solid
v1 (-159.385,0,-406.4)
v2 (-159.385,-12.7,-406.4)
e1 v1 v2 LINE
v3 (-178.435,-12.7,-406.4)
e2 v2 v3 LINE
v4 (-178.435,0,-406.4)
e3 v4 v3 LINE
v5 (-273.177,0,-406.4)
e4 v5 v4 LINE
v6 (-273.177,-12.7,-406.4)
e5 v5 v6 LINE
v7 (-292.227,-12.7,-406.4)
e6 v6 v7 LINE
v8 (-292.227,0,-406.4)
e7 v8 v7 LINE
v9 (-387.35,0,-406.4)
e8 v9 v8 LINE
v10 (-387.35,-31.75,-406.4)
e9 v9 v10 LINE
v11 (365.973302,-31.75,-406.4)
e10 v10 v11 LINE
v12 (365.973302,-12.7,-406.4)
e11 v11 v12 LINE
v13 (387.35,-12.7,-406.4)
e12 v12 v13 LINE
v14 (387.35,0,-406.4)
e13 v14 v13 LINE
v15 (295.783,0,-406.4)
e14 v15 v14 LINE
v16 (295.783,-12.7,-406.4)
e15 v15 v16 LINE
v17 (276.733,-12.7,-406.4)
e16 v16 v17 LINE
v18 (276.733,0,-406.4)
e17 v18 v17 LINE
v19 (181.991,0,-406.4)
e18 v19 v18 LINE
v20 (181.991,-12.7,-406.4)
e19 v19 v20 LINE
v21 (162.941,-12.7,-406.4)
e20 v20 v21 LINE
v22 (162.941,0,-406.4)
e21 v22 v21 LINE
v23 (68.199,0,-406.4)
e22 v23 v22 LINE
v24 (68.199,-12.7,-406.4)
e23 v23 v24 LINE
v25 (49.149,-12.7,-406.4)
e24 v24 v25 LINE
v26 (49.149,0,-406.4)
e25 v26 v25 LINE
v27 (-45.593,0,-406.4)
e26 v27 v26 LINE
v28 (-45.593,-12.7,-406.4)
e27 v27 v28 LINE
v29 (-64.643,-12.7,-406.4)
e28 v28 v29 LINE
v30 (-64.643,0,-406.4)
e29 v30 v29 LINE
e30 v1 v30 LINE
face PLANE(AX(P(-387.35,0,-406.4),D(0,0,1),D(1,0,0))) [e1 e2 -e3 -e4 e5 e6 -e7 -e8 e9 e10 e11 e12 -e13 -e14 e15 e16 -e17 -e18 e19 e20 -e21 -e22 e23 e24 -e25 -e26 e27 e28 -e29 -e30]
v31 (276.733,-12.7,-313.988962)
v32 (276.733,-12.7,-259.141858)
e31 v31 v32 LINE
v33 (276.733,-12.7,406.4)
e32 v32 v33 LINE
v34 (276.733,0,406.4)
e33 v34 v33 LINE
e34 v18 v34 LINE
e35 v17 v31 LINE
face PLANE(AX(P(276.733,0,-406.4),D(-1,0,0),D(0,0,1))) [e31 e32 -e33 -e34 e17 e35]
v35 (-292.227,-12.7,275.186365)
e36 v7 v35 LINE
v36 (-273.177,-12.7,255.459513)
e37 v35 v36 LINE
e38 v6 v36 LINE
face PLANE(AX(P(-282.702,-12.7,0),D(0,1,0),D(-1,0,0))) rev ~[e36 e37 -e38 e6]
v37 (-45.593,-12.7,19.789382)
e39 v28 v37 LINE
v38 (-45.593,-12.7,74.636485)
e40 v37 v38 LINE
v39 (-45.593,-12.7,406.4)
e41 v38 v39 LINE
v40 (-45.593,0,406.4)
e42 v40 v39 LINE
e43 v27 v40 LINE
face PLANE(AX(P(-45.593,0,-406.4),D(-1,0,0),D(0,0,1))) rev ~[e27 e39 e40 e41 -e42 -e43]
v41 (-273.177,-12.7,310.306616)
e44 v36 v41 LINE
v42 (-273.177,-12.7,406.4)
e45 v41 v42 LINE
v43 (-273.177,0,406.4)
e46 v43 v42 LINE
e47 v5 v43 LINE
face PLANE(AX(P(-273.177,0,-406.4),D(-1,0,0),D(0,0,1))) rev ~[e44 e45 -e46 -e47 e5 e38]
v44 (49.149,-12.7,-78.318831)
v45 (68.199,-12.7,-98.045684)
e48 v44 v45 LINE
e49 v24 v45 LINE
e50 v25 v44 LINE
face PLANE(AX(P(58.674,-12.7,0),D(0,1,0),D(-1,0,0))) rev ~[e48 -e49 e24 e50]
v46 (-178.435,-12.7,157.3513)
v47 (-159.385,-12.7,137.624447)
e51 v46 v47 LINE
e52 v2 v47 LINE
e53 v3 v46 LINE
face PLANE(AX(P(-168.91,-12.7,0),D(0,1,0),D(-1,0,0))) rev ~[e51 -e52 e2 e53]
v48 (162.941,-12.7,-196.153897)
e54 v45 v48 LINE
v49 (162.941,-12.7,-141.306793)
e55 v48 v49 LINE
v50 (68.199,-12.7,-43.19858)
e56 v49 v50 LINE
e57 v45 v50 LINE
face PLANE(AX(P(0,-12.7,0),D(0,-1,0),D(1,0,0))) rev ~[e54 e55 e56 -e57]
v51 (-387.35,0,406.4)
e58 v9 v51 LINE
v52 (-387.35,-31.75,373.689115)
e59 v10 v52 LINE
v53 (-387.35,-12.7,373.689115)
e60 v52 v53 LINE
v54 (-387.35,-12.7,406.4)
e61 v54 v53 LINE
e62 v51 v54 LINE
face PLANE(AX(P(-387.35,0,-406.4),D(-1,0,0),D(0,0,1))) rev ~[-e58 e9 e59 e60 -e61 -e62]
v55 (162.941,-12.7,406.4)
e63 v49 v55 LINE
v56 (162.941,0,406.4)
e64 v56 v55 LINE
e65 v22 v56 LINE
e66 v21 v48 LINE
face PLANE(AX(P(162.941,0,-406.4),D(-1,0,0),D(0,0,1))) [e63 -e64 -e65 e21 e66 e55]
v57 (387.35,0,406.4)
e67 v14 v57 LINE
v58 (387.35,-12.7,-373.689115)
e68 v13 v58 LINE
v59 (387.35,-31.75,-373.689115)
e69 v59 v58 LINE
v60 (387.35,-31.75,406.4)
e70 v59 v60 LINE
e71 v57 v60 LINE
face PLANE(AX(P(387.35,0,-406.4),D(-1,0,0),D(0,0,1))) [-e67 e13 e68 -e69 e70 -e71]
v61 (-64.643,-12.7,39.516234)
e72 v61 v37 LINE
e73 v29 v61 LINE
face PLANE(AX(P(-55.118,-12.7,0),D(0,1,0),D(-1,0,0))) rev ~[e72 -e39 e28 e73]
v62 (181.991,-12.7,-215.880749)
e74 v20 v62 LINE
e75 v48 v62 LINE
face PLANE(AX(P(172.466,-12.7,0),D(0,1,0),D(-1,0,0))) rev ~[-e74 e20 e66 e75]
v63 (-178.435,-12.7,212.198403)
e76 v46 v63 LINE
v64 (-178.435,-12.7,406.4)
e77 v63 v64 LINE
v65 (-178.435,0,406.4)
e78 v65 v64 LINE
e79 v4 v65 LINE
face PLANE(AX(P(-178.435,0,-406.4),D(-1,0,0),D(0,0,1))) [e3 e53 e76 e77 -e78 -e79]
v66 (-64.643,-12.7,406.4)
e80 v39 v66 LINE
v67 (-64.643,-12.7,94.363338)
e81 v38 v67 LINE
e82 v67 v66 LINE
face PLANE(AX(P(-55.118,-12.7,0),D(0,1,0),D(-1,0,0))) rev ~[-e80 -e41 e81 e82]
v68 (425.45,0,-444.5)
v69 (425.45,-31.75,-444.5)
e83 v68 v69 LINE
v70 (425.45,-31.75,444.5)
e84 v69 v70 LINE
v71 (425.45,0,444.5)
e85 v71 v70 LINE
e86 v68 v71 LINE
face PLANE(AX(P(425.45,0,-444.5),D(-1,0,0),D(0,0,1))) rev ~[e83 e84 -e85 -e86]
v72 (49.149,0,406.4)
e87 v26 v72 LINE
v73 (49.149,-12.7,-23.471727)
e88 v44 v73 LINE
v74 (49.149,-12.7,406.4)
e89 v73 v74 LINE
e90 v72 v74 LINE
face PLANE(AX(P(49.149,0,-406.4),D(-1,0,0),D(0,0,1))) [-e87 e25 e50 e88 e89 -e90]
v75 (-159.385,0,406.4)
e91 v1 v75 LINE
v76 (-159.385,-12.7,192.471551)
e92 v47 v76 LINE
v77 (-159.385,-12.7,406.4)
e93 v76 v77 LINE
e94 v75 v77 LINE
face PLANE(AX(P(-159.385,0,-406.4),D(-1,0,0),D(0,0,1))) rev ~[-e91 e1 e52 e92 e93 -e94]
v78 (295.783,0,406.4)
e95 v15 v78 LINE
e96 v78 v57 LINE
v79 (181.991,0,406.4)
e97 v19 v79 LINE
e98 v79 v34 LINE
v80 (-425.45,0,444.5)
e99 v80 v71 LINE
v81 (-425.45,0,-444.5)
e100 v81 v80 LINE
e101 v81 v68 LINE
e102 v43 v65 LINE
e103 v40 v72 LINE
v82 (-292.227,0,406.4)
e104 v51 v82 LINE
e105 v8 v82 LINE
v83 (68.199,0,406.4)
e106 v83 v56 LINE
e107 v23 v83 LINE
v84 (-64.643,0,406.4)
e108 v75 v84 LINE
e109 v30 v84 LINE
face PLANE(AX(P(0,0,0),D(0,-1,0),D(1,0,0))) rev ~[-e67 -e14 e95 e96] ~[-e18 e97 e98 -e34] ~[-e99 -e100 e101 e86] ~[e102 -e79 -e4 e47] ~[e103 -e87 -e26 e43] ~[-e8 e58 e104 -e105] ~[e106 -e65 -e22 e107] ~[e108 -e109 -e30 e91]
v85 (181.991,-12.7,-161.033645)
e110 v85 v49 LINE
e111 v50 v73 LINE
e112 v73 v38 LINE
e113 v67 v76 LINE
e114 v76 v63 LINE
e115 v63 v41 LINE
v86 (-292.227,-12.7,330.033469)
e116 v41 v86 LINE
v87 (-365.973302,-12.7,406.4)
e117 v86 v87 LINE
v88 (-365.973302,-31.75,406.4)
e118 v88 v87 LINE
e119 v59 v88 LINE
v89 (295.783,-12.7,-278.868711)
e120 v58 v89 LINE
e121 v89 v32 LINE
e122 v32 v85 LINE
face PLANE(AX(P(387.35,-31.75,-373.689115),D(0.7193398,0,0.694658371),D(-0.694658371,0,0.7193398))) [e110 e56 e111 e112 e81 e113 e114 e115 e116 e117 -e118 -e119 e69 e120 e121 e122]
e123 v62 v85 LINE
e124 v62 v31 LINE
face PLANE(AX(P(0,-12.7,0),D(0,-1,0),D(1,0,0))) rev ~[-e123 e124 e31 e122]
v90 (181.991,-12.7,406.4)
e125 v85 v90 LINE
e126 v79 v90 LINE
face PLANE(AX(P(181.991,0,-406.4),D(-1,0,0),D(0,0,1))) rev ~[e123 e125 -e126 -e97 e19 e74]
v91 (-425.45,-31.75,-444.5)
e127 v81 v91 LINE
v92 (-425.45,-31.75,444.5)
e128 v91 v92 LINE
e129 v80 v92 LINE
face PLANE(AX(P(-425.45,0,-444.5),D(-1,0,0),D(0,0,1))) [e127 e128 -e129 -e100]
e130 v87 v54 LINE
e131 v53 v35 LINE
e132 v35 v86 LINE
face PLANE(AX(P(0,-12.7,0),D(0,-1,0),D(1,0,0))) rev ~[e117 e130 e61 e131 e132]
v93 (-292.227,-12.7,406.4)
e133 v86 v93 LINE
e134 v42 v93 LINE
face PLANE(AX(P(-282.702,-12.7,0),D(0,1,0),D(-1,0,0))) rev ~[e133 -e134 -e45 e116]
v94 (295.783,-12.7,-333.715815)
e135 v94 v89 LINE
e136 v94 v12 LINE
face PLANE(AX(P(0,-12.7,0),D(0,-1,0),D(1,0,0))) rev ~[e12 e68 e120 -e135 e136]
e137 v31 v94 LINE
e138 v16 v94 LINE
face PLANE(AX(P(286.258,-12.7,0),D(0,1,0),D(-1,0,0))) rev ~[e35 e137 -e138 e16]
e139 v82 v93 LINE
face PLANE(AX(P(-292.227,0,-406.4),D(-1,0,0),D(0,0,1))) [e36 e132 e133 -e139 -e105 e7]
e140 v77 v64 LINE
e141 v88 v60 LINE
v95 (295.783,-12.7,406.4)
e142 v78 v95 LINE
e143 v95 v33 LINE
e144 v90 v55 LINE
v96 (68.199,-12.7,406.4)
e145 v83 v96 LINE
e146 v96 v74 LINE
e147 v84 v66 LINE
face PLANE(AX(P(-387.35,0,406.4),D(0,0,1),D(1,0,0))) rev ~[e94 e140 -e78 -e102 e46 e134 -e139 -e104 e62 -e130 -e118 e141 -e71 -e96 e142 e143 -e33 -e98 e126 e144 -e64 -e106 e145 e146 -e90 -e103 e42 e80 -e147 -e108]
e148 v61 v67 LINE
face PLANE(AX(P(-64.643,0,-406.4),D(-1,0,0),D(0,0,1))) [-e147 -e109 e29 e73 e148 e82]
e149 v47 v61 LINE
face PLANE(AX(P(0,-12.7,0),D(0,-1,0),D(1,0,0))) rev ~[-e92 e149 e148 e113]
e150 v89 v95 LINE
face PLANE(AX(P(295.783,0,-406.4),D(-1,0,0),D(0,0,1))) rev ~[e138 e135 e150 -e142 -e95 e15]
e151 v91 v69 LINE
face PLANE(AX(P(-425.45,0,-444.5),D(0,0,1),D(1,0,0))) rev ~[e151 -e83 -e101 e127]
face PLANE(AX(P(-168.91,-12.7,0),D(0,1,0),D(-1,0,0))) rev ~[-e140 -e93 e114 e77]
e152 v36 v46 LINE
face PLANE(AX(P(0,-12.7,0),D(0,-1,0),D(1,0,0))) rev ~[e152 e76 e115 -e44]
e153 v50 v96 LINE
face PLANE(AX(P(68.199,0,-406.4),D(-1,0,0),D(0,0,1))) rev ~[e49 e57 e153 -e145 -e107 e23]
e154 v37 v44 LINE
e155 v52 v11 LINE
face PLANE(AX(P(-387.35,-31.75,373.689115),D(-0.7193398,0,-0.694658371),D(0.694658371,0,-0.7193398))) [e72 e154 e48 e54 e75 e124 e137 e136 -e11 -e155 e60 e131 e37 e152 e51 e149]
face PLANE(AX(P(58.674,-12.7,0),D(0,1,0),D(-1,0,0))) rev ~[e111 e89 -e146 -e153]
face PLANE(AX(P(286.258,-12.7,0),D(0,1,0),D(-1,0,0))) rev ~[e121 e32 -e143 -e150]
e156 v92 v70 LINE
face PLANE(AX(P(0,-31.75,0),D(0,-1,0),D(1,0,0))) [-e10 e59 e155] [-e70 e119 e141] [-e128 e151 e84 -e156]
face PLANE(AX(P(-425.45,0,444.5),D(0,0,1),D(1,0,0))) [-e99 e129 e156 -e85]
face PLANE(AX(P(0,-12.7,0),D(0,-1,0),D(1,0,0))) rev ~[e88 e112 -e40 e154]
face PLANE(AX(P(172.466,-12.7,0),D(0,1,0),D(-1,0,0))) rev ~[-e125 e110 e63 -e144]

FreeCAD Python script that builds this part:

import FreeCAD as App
import Part
import Sketcher

V = App.Vector
Q = App.Units.Quantity


def add_polygon(sketch, points):
    """Adds a closed chain of lines whose ends are joined by coincident constraints."""
    first, n = sketch.GeometryCount, len(points)
    for a, b in zip(points, points[1:] + points[:1]):
        sketch.addGeometry(Part.LineSegment(App.Vector(*a, 0), App.Vector(*b, 0)), False)
    for i in range(n):
        sketch.addConstraint(Sketcher.Constraint("Coincident", first + i, 2, first + (i + 1) % n, 1))

doc = App.newDocument("Part")
body = doc.addObject("PartDesign::Body", "Body")

# Sketch on XZ plane
sketch1 = body.newObject("Sketcher::SketchObject", "Sketch")
sketch1.AttachmentSupport = (doc.getObject("XZ_Plane"), [""])
sketch1.MapMode = "FlatFace"
add_polygon(sketch1, [(-425, 444), (-425, -444), (425, -444), (425, 444)])  # lines 0-3
add_polygon(sketch1, [(387, -406), (-387, -406), (-387, 406), (387, 406)])  # lines 4-7
sketch1.addConstraint(Sketcher.Constraint("Vertical", 0))
sketch1.addConstraint(Sketcher.Constraint("Horizontal", 1))
sketch1.addConstraint(Sketcher.Constraint("Vertical", 2))
sketch1.addConstraint(Sketcher.Constraint("Horizontal", 3))
sketch1.addConstraint(Sketcher.Constraint("Horizontal", 4))
sketch1.addConstraint(Sketcher.Constraint("Vertical", 5))
sketch1.addConstraint(Sketcher.Constraint("Horizontal", 6))
sketch1.addConstraint(Sketcher.Constraint("Vertical", 7))
sketch1.addConstraint(Sketcher.Constraint("Symmetric", 0, 2, 2, 2, -1, 1))
sketch1.addConstraint(Sketcher.Constraint("Symmetric", 4, 2, 6, 2, -1, 1))
sketch1.addConstraint(Sketcher.Constraint("DistanceY", 0, 2, 0, 1, Q("35 in")))
sketch1.addConstraint(Sketcher.Constraint("DistanceY", 5, 1, 5, 2, Q("32 in")))
sketch1.addConstraint(Sketcher.Constraint("DistanceX", 1, 1, 1, 2, Q("33.5 in")))
sketch1.addConstraint(Sketcher.Constraint("DistanceX", 4, 2, 4, 1, Q("30.5 in")))
pad1 = body.newObject("PartDesign::Pad", "Pad")
pad1.Profile = sketch1
pad1.Length = Q("1.25 in")

# Sketch on XZ plane
sketch2 = body.newObject("Sketcher::SketchObject", "Sketch001")
sketch2.AttachmentSupport = (doc.getObject("XZ_Plane"), [""])
sketch2.MapMode = "FlatFace"
add_polygon(sketch2, [(296, 406), (296, -406), (277, -406), (277, 406)])  # lines 0-3
add_polygon(sketch2, [(182, 406), (182, -406), (163, -406), (163, 406)])  # lines 4-7
add_polygon(sketch2, [(68, 406), (68, -406), (49, -406), (49, 406)])  # lines 8-11
add_polygon(sketch2, [(-46, 406), (-46, -406), (-65, -406), (-65, 406)])  # lines 12-15
add_polygon(sketch2, [(-159, 406), (-159, -406), (-178, -406), (-178, 406)])  # lines 16-19
add_polygon(sketch2, [(-273, 406), (-273, -406), (-292, -406), (-292, 406)])  # lines 20-23
sketch2.addConstraint(Sketcher.Constraint("Vertical", 0))
sketch2.addConstraint(Sketcher.Constraint("Horizontal", 1))
sketch2.addConstraint(Sketcher.Constraint("Vertical", 2))
sketch2.addConstraint(Sketcher.Constraint("Horizontal", 3))
sketch2.addConstraint(Sketcher.Constraint("Vertical", 4))
sketch2.addConstraint(Sketcher.Constraint("Horizontal", 5))
sketch2.addConstraint(Sketcher.Constraint("Vertical", 6))
sketch2.addConstraint(Sketcher.Constraint("Horizontal", 7))
sketch2.addConstraint(Sketcher.Constraint("Vertical", 8))
sketch2.addConstraint(Sketcher.Constraint("Horizontal", 9))
sketch2.addConstraint(Sketcher.Constraint("Vertical", 10))
sketch2.addConstraint(Sketcher.Constraint("Horizontal", 11))
sketch2.addConstraint(Sketcher.Constraint("Vertical", 12))
sketch2.addConstraint(Sketcher.Constraint("Horizontal", 13))
sketch2.addConstraint(Sketcher.Constraint("Vertical", 14))
sketch2.addConstraint(Sketcher.Constraint("Horizontal", 15))
sketch2.addConstraint(Sketcher.Constraint("Vertical", 16))
sketch2.addConstraint(Sketcher.Constraint("Horizontal", 17))
sketch2.addConstraint(Sketcher.Constraint("Vertical", 18))
sketch2.addConstraint(Sketcher.Constraint("Horizontal", 19))
sketch2.addConstraint(Sketcher.Constraint("Vertical", 20))
sketch2.addConstraint(Sketcher.Constraint("Horizontal", 21))
sketch2.addConstraint(Sketcher.Constraint("Vertical", 22))
sketch2.addConstraint(Sketcher.Constraint("Horizontal", 23))
sketch2.addConstraint(Sketcher.Constraint("Horizontal", 1, 2, 4, 2))
sketch2.addConstraint(Sketcher.Constraint("Horizontal", 3, 2, 6, 2))
sketch2.addConstraint(Sketcher.Constraint("Horizontal", 5, 2, 8, 2))
sketch2.addConstraint(Sketcher.Constraint("Horizontal", 7, 2, 10, 2))
sketch2.addConstraint(Sketcher.Constraint("Horizontal", 9, 2, 12, 2))
sketch2.addConstraint(Sketcher.Constraint("Horizontal", 11, 2, 14, 2))
sketch2.addConstraint(Sketcher.Constraint("Horizontal", 13, 2, 16, 2))
sketch2.addConstraint(Sketcher.Constraint("Horizontal", 15, 2, 18, 2))
sketch2.addConstraint(Sketcher.Constraint("Horizontal", 17, 2, 20, 2))
sketch2.addConstraint(Sketcher.Constraint("Horizontal", 19, 2, 22, 2))
sketch2.addConstraint(Sketcher.Constraint("Equal", 3, 5))
sketch2.addConstraint(Sketcher.Constraint("Equal", 7, 9))
sketch2.addConstraint(Sketcher.Constraint("Equal", 11, 13))
sketch2.addConstraint(Sketcher.Constraint("Equal", 15, 17))
sketch2.addConstraint(Sketcher.Constraint("Equal", 19, 21))
sketch2.addConstraint(Sketcher.Constraint("DistanceY", 0, 2, 0, 1, Q("32 in")))
sketch2.addConstraint(Sketcher.Constraint("DistanceY", 0, 2, -1, 1, Q("16 in")))
sketch2.addConstraint(Sketcher.Constraint("DistanceX", 1, 2, 1, 1, Q("0.75 in")))
sketch2.addConstraint(Sketcher.Constraint("DistanceX", 4, 2, 1, 2, Q("3.73 in")))
sketch2.addConstraint(Sketcher.Constraint("DistanceX", 8, 2, 5, 2, Q("3.73 in")))
sketch2.addConstraint(Sketcher.Constraint("DistanceX", 12, 2, 9, 2, Q("3.73 in")))
sketch2.addConstraint(Sketcher.Constraint("DistanceX", 16, 2, 13, 2, Q("3.73 in")))
sketch2.addConstraint(Sketcher.Constraint("DistanceX", 20, 2, 17, 2, Q("3.73 in")))
sketch2.addConstraint(Sketcher.Constraint("DistanceX", -1, 1, 0, 2, Q("11.645 in")))
pad2 = body.newObject("PartDesign::Pad", "Pad001")
pad2.Profile = sketch2
pad2.Length = Q("0.5 in")

# Sketch on XZ plane
sketch3 = body.newObject("Sketcher::SketchObject", "Sketch002")
sketch3.AttachmentSupport = (doc.getObject("XZ_Plane"), [""])
sketch3.MapMode = "FlatFace"
sketch3.AttachmentOffset = App.Placement(V(0, 0, 1.25 * 25.4), App.Rotation())
add_polygon(sketch3, [(387, -374), (-366, 406), (-387, 406), (-387, 374), (366, -406), (387, -406)])  # lines 0-5
sketch3.addConstraint(Sketcher.Constraint("Horizontal", 1))
sketch3.addConstraint(Sketcher.Constraint("Vertical", 2))
sketch3.addConstraint(Sketcher.Constraint("Horizontal", 4))
sketch3.addConstraint(Sketcher.Constraint("Vertical", 5))
sketch3.addConstraint(Sketcher.Constraint("Symmetric", 0, 2, 3, 2, -1, 1))
sketch3.addConstraint(Sketcher.Constraint("Symmetric", 2, 2, 5, 2, -1, 1))
sketch3.addConstraint(Sketcher.Constraint("DistanceY", -1, 1, 0, 2, Q("16 in")))
sketch3.addConstraint(Sketcher.Constraint("Angle", 0, Q("134 deg")))
sketch3.addConstraint(Sketcher.Constraint("DistanceX", 2, 2, 4, 2, Q("30.5 in")))
sketch3.addConstraint(Sketcher.Constraint("DistanceX", 1, 2, 1, 1, 21.376698))
pad3 = body.newObject("PartDesign::Pad", "Pad002")
pad3.Profile = sketch3
pad3.Length = Q("0.75 in")
pad3.Reversed = True

doc.recompute()
